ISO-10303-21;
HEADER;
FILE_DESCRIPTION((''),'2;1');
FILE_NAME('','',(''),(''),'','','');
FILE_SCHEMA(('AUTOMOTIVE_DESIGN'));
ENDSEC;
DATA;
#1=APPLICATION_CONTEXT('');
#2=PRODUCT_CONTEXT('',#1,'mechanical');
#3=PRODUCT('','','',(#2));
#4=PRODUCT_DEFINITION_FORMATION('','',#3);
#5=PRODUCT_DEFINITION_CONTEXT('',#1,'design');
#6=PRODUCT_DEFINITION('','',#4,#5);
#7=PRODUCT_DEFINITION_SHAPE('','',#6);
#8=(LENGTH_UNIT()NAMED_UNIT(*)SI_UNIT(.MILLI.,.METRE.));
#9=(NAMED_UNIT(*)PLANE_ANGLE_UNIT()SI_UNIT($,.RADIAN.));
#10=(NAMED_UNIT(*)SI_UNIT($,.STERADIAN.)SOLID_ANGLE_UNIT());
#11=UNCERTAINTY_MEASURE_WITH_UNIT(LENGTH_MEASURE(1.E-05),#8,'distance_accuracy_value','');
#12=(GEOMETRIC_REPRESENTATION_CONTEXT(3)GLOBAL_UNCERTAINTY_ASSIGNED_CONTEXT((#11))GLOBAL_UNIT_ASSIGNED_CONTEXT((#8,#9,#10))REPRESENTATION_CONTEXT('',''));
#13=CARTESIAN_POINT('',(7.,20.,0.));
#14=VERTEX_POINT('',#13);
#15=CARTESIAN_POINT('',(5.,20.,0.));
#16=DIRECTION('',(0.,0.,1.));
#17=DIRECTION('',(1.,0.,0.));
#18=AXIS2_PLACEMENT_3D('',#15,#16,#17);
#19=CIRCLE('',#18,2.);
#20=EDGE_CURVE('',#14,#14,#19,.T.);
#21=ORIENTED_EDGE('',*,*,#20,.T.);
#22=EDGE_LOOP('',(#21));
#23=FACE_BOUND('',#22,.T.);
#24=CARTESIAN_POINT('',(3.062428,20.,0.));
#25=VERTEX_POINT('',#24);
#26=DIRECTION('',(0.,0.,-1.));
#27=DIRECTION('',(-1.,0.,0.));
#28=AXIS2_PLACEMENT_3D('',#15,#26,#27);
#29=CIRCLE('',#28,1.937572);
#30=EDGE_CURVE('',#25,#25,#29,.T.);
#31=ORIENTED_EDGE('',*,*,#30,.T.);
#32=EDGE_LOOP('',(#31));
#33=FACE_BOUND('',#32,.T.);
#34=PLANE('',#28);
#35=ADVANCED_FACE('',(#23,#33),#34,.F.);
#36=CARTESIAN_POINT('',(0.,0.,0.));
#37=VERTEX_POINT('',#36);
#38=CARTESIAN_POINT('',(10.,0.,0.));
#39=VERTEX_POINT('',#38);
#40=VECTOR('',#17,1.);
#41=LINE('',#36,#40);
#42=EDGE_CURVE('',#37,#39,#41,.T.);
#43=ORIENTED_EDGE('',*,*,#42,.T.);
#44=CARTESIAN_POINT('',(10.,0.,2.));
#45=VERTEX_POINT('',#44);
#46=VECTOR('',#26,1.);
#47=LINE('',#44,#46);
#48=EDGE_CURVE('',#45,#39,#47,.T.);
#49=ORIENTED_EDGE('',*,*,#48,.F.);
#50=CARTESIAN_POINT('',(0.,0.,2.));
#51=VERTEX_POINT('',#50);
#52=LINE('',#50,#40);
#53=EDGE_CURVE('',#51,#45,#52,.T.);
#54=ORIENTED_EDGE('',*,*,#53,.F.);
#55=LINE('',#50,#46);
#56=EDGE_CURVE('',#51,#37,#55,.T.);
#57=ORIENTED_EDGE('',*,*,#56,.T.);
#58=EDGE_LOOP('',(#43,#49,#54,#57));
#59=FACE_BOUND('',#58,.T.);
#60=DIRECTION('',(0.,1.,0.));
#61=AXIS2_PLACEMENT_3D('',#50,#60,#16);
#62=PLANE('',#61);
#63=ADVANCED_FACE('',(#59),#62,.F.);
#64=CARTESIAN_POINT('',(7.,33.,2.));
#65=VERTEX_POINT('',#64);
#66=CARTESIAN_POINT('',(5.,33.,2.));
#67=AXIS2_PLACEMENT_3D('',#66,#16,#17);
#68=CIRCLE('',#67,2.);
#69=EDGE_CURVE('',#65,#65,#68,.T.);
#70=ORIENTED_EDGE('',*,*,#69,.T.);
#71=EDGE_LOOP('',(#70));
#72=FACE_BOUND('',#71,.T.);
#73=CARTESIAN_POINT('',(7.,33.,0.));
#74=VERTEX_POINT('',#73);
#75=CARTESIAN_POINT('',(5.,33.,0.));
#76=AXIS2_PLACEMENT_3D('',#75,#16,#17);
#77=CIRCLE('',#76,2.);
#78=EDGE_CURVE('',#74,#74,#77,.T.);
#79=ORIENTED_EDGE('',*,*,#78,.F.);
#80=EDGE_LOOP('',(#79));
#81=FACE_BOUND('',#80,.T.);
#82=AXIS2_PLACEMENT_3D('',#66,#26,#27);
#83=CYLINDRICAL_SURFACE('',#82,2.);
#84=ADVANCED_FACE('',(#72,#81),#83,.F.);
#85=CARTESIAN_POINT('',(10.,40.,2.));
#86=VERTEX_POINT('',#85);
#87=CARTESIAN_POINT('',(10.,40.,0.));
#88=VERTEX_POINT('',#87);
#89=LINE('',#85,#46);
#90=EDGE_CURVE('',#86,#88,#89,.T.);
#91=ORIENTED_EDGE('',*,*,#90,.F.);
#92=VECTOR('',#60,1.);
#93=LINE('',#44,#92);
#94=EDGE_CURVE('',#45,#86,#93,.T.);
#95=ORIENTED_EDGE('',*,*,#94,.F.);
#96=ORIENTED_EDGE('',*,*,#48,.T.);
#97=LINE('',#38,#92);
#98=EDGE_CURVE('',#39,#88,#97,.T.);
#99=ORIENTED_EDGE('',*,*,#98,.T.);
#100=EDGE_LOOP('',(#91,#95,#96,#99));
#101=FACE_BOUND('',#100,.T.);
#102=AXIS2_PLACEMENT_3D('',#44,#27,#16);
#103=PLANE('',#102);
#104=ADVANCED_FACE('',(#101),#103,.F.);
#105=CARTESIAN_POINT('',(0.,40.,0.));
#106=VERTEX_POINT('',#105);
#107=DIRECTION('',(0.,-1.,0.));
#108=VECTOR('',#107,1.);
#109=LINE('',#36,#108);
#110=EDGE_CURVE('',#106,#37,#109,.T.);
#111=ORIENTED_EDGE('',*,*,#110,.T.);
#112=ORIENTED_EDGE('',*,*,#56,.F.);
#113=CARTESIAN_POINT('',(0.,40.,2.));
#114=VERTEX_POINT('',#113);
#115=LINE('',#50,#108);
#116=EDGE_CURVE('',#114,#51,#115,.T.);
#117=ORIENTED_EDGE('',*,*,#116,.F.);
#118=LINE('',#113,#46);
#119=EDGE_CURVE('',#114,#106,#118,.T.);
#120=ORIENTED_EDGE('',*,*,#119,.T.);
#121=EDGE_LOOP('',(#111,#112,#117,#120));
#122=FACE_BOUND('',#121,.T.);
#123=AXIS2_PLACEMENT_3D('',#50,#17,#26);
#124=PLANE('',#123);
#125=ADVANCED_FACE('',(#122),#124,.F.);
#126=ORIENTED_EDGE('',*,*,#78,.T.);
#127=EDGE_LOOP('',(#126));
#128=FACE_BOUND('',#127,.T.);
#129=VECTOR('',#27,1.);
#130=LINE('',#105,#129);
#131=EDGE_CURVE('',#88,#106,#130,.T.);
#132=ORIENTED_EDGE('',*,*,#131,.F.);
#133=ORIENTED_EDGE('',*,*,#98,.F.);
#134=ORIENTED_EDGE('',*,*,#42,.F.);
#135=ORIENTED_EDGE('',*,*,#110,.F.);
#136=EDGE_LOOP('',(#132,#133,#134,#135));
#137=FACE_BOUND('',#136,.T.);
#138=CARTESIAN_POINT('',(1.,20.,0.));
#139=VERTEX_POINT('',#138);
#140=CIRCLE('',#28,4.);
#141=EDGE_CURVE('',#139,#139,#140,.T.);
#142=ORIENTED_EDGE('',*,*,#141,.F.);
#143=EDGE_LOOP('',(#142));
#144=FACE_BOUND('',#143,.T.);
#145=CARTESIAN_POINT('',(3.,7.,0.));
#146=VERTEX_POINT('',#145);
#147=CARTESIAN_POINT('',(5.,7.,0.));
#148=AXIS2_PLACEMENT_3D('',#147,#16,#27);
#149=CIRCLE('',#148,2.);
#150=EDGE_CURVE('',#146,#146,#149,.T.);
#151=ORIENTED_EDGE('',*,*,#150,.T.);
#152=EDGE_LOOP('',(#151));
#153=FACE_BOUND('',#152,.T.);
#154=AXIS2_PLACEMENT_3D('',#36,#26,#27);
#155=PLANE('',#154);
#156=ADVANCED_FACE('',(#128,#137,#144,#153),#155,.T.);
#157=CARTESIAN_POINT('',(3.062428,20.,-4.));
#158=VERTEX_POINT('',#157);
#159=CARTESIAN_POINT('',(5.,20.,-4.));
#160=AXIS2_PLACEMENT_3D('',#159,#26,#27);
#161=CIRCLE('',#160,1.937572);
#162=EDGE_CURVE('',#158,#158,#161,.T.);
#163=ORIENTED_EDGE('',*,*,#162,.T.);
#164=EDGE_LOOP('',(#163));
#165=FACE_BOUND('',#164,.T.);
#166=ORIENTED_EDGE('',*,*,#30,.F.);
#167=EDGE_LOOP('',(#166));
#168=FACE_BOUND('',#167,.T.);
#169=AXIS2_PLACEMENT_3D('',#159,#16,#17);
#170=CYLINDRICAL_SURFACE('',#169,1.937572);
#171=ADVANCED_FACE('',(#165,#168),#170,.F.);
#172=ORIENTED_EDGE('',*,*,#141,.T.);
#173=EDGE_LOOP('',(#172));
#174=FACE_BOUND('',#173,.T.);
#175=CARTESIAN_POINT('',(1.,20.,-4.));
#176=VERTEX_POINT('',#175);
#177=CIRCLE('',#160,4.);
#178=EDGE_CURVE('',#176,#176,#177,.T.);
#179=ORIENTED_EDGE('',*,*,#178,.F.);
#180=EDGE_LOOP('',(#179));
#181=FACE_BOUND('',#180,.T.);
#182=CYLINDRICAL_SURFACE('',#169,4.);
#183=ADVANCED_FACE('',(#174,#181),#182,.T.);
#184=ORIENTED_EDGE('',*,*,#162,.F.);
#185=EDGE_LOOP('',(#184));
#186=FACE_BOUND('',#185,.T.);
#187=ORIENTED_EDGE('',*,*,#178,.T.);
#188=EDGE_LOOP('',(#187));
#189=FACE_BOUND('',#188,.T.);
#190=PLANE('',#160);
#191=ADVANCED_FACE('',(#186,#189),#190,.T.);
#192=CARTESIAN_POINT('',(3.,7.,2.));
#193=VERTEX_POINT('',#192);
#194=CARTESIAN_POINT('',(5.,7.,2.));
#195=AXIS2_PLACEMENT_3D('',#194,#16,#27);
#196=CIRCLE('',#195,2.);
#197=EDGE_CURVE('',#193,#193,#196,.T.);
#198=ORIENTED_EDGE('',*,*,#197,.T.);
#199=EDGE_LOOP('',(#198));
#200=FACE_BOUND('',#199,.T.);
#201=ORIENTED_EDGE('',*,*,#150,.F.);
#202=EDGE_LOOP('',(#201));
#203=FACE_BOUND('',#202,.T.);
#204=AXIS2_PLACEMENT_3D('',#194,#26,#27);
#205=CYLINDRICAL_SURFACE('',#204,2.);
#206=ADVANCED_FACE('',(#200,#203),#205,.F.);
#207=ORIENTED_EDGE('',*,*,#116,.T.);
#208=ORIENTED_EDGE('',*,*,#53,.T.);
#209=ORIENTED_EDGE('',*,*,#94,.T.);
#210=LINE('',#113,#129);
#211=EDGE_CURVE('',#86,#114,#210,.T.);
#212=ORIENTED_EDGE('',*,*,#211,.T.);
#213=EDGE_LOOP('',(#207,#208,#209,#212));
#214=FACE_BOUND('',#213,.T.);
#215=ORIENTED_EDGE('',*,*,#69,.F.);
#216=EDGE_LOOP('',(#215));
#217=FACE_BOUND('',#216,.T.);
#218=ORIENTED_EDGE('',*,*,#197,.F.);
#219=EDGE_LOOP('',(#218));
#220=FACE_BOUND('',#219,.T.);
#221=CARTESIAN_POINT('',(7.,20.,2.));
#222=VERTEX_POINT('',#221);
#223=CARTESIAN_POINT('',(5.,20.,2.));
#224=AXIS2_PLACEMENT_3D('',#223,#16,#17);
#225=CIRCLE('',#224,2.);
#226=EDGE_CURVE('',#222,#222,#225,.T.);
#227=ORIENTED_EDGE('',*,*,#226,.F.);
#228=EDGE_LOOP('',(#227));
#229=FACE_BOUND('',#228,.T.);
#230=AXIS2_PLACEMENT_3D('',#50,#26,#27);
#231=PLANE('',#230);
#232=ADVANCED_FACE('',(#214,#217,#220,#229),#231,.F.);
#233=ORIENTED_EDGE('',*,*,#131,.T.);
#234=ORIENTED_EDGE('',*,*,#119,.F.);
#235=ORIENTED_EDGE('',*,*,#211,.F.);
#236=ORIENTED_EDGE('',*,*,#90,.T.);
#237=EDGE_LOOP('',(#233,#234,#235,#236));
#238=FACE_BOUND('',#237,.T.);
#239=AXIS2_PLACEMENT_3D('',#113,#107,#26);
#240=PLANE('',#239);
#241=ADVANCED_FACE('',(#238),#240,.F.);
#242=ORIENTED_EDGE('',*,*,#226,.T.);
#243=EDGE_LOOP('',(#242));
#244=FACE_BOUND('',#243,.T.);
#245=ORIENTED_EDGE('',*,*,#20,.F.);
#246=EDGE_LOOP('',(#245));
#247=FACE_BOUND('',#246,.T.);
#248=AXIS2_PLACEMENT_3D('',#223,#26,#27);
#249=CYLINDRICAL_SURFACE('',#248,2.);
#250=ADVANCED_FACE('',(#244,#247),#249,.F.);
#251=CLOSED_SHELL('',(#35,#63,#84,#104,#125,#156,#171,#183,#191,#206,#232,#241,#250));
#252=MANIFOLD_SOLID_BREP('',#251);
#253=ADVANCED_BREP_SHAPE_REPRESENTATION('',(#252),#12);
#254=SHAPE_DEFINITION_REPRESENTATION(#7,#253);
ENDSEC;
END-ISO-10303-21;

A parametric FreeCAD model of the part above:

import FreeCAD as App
import Part
import Sketcher
from FreeCAD import Vector


def add_polygon(sketch, points):
    """Adds a closed chain of lines whose ends are joined by coincident constraints."""
    first, n = sketch.GeometryCount, len(points)
    for a, b in zip(points, points[1:] + points[:1]):
        sketch.addGeometry(Part.LineSegment(App.Vector(*a, 0), App.Vector(*b, 0)), False)
    for i in range(n):
        sketch.addConstraint(Sketcher.Constraint("Coincident", first + i, 2, first + (i + 1) % n, 1))

doc = App.newDocument("Part")
params = doc.addObject("Spreadsheet::Sheet", "Params")
for row, (alias, value) in enumerate([
    ("sketch1_diameter", "4 mm"),
    ("sketch1_width", "10 mm"),
    ("sketch1_height", "40 mm"),
    ("pad1_length", "2 mm"),
    ("sketch2_diameter", "8 mm"),
    ("pad2_length", "4 mm"),
], start=1):
    params.set(f"A{row}", alias)
    params.set(f"B{row}", "=" + value)
    params.setAlias(f"B{row}", alias)

body = doc.addObject("PartDesign::Body", "Body")

# Sketch on XY plane
sketch1 = body.newObject("Sketcher::SketchObject", "Sketch")
sketch1.AttachmentSupport = (doc.getObject("XY_Plane"), [""])
sketch1.MapMode = "FlatFace"
add_polygon(sketch1, [(0, 40), (0, 0), (10, 0), (10, 40)])  # lines 0-3
sketch1.addGeometry(Part.Circle(Vector(5, 7, 0), Vector(0, 0, 1), 2), False)  # 4
sketch1.addGeometry(Part.Circle(Vector(5, 20, 0), Vector(0, 0, 1), 2), False)  # 5
sketch1.addGeometry(Part.Circle(Vector(5, 33, 0), Vector(0, 0, 1), 2), False)  # 6
sketch1.addConstraint([
    Sketcher.Constraint("Vertical", 0),
    Sketcher.Constraint("Horizontal", 1),
    Sketcher.Constraint("Vertical", 2),
    Sketcher.Constraint("Horizontal", 3),
    Sketcher.Constraint("Coincident", 0, 2, -1, 1),
    Sketcher.Constraint("Equal", 4, 5),
    Sketcher.Constraint("Equal", 5, 6),
    Sketcher.Constraint("Vertical", 4, 3, 5, 3),
    Sketcher.Constraint("Vertical", 5, 3, 6, 3),
    Sketcher.Constraint("Diameter", 4, 4.0),
    Sketcher.Constraint("DistanceX", 1, 1, 1, 2, 10.0),
    Sketcher.Constraint("DistanceY", 0, 2, 0, 1, 40.0),
    Sketcher.Constraint("DistanceX", -1, 1, 4, 3, 5.0),
    Sketcher.Constraint("DistanceY", -1, 1, 4, 3, 7.0),
    Sketcher.Constraint("DistanceY", -1, 1, 5, 3, 20.0),
    Sketcher.Constraint("DistanceY", -1, 1, 6, 3, 33.0),
])
sketch1.setExpression("Constraints[13]", "Params.sketch1_diameter")
sketch1.setExpression("Constraints[14]", "Params.sketch1_width")
sketch1.setExpression("Constraints[15]", "Params.sketch1_height")
pad1 = body.newObject("PartDesign::Pad", "Pad")
pad1.Profile = sketch1
pad1.setExpression("Length", "Params.pad1_length")

# Sketch on XY plane
sketch2 = body.newObject("Sketcher::SketchObject", "Sketch001")
sketch2.AttachmentSupport = (doc.getObject("XY_Plane"), [""])
sketch2.MapMode = "FlatFace"
sketch2.addGeometry([
    Part.Circle(Vector(5, 20, 0), Vector(0, 0, 1), 4),
    Part.Circle(Vector(5, 20, 0), Vector(0, 0, 1), 1.9),
], False)
sketch2.addConstraint([
    Sketcher.Constraint("Coincident", 1, 3, 0, 3),
    Sketcher.Constraint("Diameter", 0, 8.0),
    Sketcher.Constraint("DistanceX", -1, 1, 0, 3, 5.0),
    Sketcher.Constraint("DistanceY", -1, 1, 0, 3, 20.0),
    Sketcher.Constraint("Diameter", 1, 3.875143),
])
sketch2.setExpression("Constraints[1]", "Params.sketch2_diameter")
pad2 = body.newObject("PartDesign::Pad", "Pad001")
pad2.Profile = sketch2
pad2.setExpression("Length", "Params.pad2_length")
pad2.Reversed = True

doc.recompute()
